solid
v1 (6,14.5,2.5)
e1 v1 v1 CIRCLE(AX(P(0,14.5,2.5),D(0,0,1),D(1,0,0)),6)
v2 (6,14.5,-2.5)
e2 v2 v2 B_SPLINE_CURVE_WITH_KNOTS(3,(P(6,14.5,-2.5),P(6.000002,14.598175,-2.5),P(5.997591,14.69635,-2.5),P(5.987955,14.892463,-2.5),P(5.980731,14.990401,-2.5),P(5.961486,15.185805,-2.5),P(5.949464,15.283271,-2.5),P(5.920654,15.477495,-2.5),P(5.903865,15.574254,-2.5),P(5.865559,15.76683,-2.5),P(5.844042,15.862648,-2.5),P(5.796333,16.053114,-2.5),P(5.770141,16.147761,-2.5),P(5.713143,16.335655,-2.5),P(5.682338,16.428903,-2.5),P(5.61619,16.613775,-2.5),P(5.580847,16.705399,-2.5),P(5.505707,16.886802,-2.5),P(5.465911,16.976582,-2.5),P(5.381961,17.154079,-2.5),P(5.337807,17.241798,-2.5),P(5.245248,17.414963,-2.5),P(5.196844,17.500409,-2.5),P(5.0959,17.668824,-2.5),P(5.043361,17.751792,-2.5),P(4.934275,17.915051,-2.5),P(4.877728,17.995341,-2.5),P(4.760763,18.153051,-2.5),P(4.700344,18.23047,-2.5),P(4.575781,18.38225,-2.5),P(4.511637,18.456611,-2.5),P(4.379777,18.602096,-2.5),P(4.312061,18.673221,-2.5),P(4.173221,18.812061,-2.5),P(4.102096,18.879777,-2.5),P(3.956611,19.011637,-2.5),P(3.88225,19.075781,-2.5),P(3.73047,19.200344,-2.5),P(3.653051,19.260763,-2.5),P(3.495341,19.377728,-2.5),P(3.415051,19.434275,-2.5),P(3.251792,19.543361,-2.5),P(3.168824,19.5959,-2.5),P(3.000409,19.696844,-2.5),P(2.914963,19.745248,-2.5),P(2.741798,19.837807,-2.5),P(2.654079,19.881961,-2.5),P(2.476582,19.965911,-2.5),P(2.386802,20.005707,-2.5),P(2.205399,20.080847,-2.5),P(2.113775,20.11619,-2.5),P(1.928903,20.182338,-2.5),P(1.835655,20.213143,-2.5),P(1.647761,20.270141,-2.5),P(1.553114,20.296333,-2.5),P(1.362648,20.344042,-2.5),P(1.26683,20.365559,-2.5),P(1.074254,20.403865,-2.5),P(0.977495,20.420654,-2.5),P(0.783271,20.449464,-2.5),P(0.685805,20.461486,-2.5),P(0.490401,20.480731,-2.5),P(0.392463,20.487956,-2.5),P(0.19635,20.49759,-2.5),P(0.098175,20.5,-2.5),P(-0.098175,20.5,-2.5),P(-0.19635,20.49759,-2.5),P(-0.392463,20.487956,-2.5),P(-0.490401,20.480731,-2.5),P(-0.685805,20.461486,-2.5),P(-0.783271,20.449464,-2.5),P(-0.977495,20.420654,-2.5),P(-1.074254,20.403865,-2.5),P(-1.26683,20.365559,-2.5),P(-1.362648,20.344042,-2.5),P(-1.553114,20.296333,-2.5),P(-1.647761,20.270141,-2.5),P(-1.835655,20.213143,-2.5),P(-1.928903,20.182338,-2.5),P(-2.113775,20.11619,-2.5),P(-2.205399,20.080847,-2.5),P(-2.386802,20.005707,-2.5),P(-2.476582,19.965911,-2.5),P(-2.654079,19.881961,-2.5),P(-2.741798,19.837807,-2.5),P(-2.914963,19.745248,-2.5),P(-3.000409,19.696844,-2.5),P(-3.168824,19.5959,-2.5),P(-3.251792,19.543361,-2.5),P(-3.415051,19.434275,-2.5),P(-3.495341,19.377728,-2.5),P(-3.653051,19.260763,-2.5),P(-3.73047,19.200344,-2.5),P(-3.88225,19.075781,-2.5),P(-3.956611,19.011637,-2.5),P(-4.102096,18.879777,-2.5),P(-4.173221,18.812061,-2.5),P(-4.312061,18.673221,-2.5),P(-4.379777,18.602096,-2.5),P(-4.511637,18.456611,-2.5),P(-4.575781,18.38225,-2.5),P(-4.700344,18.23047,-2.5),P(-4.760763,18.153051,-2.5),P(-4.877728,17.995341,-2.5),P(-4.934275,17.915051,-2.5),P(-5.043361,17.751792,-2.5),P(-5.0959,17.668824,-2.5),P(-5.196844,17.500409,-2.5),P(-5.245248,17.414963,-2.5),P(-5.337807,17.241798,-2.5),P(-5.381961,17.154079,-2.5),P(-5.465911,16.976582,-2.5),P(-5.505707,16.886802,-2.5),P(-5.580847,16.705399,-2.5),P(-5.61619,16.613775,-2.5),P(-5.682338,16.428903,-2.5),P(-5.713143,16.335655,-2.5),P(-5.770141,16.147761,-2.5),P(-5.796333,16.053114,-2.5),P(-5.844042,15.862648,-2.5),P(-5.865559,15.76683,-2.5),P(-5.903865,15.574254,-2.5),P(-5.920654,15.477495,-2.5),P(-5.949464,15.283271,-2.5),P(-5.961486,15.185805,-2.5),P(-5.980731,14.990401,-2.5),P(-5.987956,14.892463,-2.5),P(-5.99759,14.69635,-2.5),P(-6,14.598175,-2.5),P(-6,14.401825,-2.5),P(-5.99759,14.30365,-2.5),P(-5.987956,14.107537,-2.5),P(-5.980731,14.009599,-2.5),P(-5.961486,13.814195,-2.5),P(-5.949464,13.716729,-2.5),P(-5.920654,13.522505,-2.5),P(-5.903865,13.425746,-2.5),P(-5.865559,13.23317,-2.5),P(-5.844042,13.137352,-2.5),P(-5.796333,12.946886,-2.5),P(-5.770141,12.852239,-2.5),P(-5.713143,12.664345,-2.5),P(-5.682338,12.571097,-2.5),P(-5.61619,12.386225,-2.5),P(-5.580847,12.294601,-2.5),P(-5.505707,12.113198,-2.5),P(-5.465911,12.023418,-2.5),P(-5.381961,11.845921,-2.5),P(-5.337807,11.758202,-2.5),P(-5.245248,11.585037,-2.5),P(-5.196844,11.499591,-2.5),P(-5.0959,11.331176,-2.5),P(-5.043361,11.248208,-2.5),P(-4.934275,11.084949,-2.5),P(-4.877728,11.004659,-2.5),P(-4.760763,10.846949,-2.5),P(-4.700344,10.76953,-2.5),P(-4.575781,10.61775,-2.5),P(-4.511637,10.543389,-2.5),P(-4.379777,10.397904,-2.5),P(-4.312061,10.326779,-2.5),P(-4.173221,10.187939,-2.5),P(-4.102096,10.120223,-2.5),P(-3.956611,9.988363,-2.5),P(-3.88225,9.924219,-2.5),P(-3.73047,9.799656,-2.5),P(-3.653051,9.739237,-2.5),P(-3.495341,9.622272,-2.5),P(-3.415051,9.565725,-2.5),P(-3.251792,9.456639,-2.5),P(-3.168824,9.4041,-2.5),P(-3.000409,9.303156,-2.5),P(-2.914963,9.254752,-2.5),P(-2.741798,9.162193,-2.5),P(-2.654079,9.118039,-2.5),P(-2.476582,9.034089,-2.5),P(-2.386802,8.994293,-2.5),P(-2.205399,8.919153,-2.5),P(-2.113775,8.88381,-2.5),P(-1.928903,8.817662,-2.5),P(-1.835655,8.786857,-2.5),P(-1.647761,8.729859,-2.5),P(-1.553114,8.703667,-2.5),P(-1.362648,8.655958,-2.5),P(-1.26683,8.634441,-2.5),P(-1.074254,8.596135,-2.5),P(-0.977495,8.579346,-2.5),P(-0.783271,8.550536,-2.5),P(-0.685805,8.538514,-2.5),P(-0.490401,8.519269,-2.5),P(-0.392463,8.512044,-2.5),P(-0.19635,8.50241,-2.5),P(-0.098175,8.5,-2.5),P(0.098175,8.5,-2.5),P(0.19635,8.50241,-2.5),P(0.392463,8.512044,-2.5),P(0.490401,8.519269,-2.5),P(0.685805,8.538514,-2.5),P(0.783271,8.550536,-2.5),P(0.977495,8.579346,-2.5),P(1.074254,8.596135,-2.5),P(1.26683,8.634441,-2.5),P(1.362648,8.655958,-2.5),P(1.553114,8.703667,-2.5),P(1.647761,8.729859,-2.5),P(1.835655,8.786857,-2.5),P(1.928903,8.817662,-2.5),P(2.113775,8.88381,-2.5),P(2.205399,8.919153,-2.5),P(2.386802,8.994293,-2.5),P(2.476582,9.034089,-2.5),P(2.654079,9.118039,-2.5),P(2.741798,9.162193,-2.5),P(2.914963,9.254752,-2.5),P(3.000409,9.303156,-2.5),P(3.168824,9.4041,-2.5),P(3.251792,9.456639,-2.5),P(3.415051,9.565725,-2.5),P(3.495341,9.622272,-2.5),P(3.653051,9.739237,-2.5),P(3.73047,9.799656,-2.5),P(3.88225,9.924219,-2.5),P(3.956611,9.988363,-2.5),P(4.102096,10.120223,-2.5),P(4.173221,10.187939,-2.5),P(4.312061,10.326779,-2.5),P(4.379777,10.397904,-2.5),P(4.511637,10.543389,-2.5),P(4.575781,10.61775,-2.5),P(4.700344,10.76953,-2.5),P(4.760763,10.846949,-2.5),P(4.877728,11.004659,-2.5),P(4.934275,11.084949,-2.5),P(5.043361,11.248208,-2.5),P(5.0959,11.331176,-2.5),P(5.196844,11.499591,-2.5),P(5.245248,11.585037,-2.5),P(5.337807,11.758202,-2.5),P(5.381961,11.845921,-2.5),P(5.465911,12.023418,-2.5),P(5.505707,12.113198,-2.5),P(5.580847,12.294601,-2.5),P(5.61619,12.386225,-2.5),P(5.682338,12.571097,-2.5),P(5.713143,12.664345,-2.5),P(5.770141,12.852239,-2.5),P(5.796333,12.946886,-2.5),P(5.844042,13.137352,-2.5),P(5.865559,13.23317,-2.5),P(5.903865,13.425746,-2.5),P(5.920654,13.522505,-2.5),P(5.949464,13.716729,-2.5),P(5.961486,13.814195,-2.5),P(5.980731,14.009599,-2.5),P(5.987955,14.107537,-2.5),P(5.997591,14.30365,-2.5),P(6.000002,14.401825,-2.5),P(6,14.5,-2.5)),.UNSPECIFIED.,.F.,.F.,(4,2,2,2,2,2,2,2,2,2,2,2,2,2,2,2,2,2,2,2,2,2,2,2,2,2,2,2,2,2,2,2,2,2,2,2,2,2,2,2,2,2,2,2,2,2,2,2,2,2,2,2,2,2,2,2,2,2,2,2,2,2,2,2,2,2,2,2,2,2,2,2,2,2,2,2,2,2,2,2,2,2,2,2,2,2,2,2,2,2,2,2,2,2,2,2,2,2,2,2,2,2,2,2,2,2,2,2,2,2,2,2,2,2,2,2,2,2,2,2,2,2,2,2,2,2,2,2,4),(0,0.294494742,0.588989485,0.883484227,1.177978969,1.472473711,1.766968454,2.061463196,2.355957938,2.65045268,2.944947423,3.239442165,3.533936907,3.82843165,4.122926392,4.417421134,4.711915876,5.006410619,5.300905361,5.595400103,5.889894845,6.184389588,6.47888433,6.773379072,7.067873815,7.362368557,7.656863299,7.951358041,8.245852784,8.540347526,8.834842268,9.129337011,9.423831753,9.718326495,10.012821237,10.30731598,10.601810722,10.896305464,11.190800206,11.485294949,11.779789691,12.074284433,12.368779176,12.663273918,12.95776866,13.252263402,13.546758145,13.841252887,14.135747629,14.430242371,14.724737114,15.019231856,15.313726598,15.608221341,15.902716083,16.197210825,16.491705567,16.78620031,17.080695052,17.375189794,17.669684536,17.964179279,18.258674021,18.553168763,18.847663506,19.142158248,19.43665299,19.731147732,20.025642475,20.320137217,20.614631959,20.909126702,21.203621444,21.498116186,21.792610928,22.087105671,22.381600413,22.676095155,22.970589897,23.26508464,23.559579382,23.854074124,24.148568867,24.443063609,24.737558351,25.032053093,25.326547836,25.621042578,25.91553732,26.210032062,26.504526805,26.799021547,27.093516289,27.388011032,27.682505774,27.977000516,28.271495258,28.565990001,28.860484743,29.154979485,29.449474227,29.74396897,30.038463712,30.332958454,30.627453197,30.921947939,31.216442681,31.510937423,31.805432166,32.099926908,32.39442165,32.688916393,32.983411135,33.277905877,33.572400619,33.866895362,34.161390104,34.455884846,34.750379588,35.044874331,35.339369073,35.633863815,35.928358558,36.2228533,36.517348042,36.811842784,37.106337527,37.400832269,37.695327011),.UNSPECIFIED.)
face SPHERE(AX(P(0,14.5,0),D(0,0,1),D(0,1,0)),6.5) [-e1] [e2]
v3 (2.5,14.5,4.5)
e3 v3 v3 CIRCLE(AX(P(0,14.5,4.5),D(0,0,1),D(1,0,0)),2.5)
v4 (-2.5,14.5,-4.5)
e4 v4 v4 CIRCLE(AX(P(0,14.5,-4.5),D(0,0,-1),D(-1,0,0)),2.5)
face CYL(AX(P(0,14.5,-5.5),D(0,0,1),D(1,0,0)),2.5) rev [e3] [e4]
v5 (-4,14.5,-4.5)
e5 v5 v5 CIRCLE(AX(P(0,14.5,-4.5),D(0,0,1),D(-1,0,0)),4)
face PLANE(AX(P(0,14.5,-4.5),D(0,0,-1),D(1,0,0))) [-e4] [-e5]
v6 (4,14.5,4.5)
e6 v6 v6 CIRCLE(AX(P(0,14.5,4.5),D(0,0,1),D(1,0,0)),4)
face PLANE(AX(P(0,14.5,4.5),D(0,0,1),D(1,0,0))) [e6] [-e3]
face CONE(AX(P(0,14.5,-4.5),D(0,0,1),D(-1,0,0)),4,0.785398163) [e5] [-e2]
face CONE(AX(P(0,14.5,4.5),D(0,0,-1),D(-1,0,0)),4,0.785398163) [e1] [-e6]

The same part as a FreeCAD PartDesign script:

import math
import FreeCAD as App
import Part
import Sketcher


def add_polygon(sketch, points):
    """Adds a closed chain of lines whose ends are joined by coincident constraints."""
    first, n = sketch.GeometryCount, len(points)
    for a, b in zip(points, points[1:] + points[:1]):
        sketch.addGeometry(Part.LineSegment(App.Vector(*a, 0), App.Vector(*b, 0)), False)
    for i in range(n):
        sketch.addConstraint(Sketcher.Constraint("Coincident", first + i, 2, first + (i + 1) % n, 1))

doc = App.newDocument("Part")
body = doc.addObject("PartDesign::Body", "Body")

# Sketch on XZ plane
sketch1 = doc.addObject("Sketcher::SketchObject", "Sketch")
body.addObject(sketch1)
sketch1.AttachmentSupport = (doc.XZ_Plane, [""])
sketch1.MapMode = "FlatFace"
sketch1.addGeometry(Part.Circle(App.Vector(0, 0, 0), App.Vector(0, 0, 1), 10), False)
sketch1.addConstraint([
    Sketcher.Constraint("Coincident", 0, 3, -1, 1),
    Sketcher.Constraint("Diameter", 0, 20.0),
])
pad1 = doc.addObject("PartDesign::Pad", "Pad")
body.addObject(pad1)
pad1.Profile = sketch1
pad1.Length = 4.5
pad1.Reversed = True

# Sketch on XY plane
sketch2 = doc.addObject("Sketcher::SketchObject", "Sketch001")
body.addObject(sketch2)
sketch2.AttachmentSupport = (doc.XY_Plane, [""])
sketch2.MapMode = "FlatFace"
sketch2.addGeometry([
    Part.LineSegment(App.Vector(-10, 4.5, 0), App.Vector(10, 4.5, 0)),  # 0
    Part.LineSegment(App.Vector(10, 4.5, 0), App.Vector(10, 14.5, 0)),  # 1
    Part.ArcOfCircle(Part.Circle(App.Vector(0, 14.5, 0), App.Vector(0, 0, 1), 10), math.radians(0), math.radians(180)),  # 2
    Part.LineSegment(App.Vector(-10, 14.5, 0), App.Vector(-10, 4.5, 0)),  # 3
    Part.Circle(App.Vector(0, 14.5, 0), App.Vector(0, 0, 1), 8),  # 4
], False)
sketch2.addConstraint([
    Sketcher.Constraint("Coincident", 0, 2, 1, 1),
    Sketcher.Constraint("Tangent", 1, 2, 2, 1),
    Sketcher.Constraint("Tangent", 2, 2, 3, 1),
    Sketcher.Constraint("Coincident", 3, 2, 0, 1),
    Sketcher.Constraint("Horizontal", 0),
    Sketcher.Constraint("Vertical", 1),
    Sketcher.Constraint("Vertical", 3),
    Sketcher.Constraint("Coincident", 4, 3, 2, 3),
    Sketcher.Constraint("PointOnObject", 2, 3, -2),
    Sketcher.Constraint("Diameter", 4, 16.0),
    Sketcher.Constraint("Radius", 2, 10.0),
    Sketcher.Constraint("DistanceY", 1, 1, 1, 2, 10.0),
    Sketcher.Constraint("DistanceY", -1, 1, 2, 3, 14.5),
])
pad2 = doc.addObject("PartDesign::Pad", "Pad001")
body.addObject(pad2)
pad2.Profile = sketch2
pad2.Length = 10
pad2.Midplane = True

# Sketch on XY plane
sketch3 = doc.addObject("Sketcher::SketchObject", "Sketch002")
body.addObject(sketch3)
sketch3.AttachmentSupport = (doc.XY_Plane, [""])
sketch3.MapMode = "FlatFace"
sketch3.addGeometry(Part.Circle(App.Vector(0, 14.5, 0), App.Vector(0, 0, 1), 8), False)
sketch3.addConstraint([
    Sketcher.Constraint("PointOnObject", 0, 3, -2),
    Sketcher.Constraint("Diameter", 0, 16.0),
    Sketcher.Constraint("DistanceY", -1, 1, 0, 3, 14.5),
])
pad3 = doc.addObject("PartDesign::Pad", "Pad002")
body.addObject(pad3)
pad3.Profile = sketch3
pad3.Length = 5
pad3.Midplane = True

# Sketch on XY plane
sketch4 = doc.addObject("Sketcher::SketchObject", "Sketch003")
body.addObject(sketch4)
sketch4.AttachmentSupport = (doc.XY_Plane, [""])
sketch4.MapMode = "FlatFace"
sketch4.AttachmentOffset = App.Placement(App.Vector(0, 0, 4.5), App.Rotation())
sketch4.addGeometry(Part.Circle(App.Vector(0, 14.5, 0), App.Vector(0, 0, 1), 4), False)
sketch4.addConstraint([
    Sketcher.Constraint("PointOnObject", 0, 3, -2),
    Sketcher.Constraint("Diameter", 0, 8.0),
    Sketcher.Constraint("DistanceY", -1, 1, 0, 3, 14.5),
])

# Sketch on XY plane
sketch5 = doc.addObject("Sketcher::SketchObject", "Sketch004")
body.addObject(sketch5)
sketch5.AttachmentSupport = (doc.XY_Plane, [""])
sketch5.MapMode = "FlatFace"
sketch5.AttachmentOffset = App.Placement(App.Vector(0, 0, 2.5), App.Rotation())
sketch5.addGeometry(Part.Circle(App.Vector(0, 14.5, 0), App.Vector(0, 0, 1), 6), False)
sketch5.addConstraint([
    Sketcher.Constraint("PointOnObject", 0, 3, -2),
    Sketcher.Constraint("Diameter", 0, 12.0),
    Sketcher.Constraint("DistanceY", -1, 1, 0, 3, 14.5),
])

additiveloft = doc.addObject("PartDesign::AdditiveLoft", "AdditiveLoft")
body.addObject(additiveloft)
additiveloft.Profile = sketch4
additiveloft.Sections = [sketch5]
doc.recompute()

mirrored = doc.addObject("PartDesign::Mirrored", "Mirrored")
body.addObject(mirrored)
mirrored.Originals = [additiveloft]
mirrored.MirrorPlane = (doc.XY_Plane, [""])
body.Tip = mirrored

# Sketch on XZ plane
sketch6 = doc.addObject("Sketcher::SketchObject", "Sketch005")
body.addObject(sketch6)
sketch6.AttachmentSupport = (doc.XZ_Plane, [""])
sketch6.MapMode = "FlatFace"
sketch6.AttachmentOffset = App.Placement(App.Vector(0, 0, -4.5), App.Rotation())
sketch6.addGeometry([
    Part.Circle(App.Vector(0, 0, 0), App.Vector(0, 0, 1), 14.627232),
    Part.Circle(App.Vector(0, 0, 0), App.Vector(0, 0, 1), 10),
], False)
sketch6.addConstraint([
    Sketcher.Constraint("Coincident", 0, 3, -1, 1),
    Sketcher.Constraint("Coincident", 1, 3, -1, 1),
    Sketcher.Constraint("Diameter", 1, 20.0),
    Sketcher.Constraint("Diameter", 0, 29.254465),
])
pocket1 = doc.addObject("PartDesign::Pocket", "Pocket")
body.addObject(pocket1)
pocket1.Profile = sketch6
pocket1.Length = 18

# Sketch on XY plane
sketch7 = doc.addObject("Sketcher::SketchObject", "Sketch006")
body.addObject(sketch7)
sketch7.AttachmentSupport = (doc.XY_Plane, [""])
sketch7.MapMode = "FlatFace"
sketch7.AttachmentOffset = App.Placement(App.Vector(0, 0, 4.5), App.Rotation())
sketch7.addGeometry(Part.Circle(App.Vector(0, 14.5, 0), App.Vector(0, 0, 1), 2.5), False)
sketch7.addConstraint([
    Sketcher.Constraint("PointOnObject", 0, 3, -2),
    Sketcher.Constraint("Diameter", 0, 5.0),
    Sketcher.Constraint("DistanceY", -1, 1, 0, 3, 14.5),
])
pocket2 = doc.addObject("PartDesign::Pocket", "Pocket001")
body.addObject(pocket2)
pocket2.Profile = sketch7
pocket2.Length = 10

# Sketch on XZ plane
sketch8 = doc.addObject("Sketcher::SketchObject", "Sketch007")
body.addObject(sketch8)
sketch8.AttachmentSupport = (doc.XZ_Plane, [""])
sketch8.MapMode = "FlatFace"
sketch8.addGeometry(Part.Circle(App.Vector(0, 0, 0), App.Vector(0, 0, 1), 6), False)
sketch8.addConstraint([
    Sketcher.Constraint("Coincident", 0, 3, -1, 1),
    Sketcher.Constraint("Diameter", 0, 12.0),
])
pad4 = doc.addObject("PartDesign::Pad", "Pad003")
body.addObject(pad4)
pad4.Profile = sketch8
pad4.Length = 80

# Sketch on XY plane
sketch9 = doc.addObject("Sketcher::SketchObject", "Sketch008")
body.addObject(sketch9)
sketch9.AttachmentSupport = (doc.XY_Plane, [""])
sketch9.MapMode = "FlatFace"
sketch9.AttachmentOffset = App.Placement(App.Vector(0, 0, 4.5), App.Rotation())
add_polygon(sketch9, [(-21.218214, 33.118217), (-21.218214, -92.452921), (23.42461, -92.452921), (23.42461, 33.118217)])  # lines 0-3
sketch9.addGeometry(Part.Circle(App.Vector(0, 14.5, 0), App.Vector(0, 0, 1), 6), False)  # 4
sketch9.addConstraint([
    Sketcher.Constraint("Vertical", 0),
    Sketcher.Constraint("Horizontal", 1),
    Sketcher.Constraint("Vertical", 2),
    Sketcher.Constraint("Horizontal", 3),
    Sketcher.Constraint("PointOnObject", 4, 3, -2),
    Sketcher.Constraint("Diameter", 4, 12.0),
    Sketcher.Constraint("DistanceY", -1, 1, 4, 3, 14.5),
    Sketcher.Constraint("DistanceX", 1, 1, 1, 2, 44.642824),
    Sketcher.Constraint("DistanceY", 0, 2, 0, 1, 125.571138),
    Sketcher.Constraint("DistanceY", 0, 2, -1, 1, 92.452921),
    Sketcher.Constraint("DistanceX", -1, 1, 1, 2, 23.42461),
])
pocket3 = doc.addObject("PartDesign::Pocket", "Pocket002")
body.addObject(pocket3)
pocket3.Profile = sketch9
pocket3.Length = 36
pocket3.Midplane = True

# Sketch on YZ plane
sketch10 = doc.addObject("Sketcher::SketchObject", "Sketch009")
body.addObject(sketch10)
sketch10.AttachmentSupport = (doc.YZ_Plane, [""])
sketch10.MapMode = "FlatFace"
sketch10.addGeometry([
    Part.LineSegment(App.Vector(20.5, 2.5, 0), App.Vector(20.5, -2.5, 0)),
    Part.ArcOfCircle(Part.Circle(App.Vector(14.5, 0, 0), App.Vector(0, 0, 1), 6.5), math.radians(-22.619865), math.radians(22.619865)),
], False)
sketch10.addGeometry(Part.LineSegment(App.Vector(14.5, 2.5, 0), App.Vector(14.5, -2.5, 0)), True)  # axis
sketch10.addConstraint([
    Sketcher.Constraint("Coincident", 0, 1, 1, 2),
    Sketcher.Constraint("Coincident", 1, 1, 0, 2),
    Sketcher.Constraint("Vertical", 0),
    Sketcher.Constraint("Vertical", 2),
    Sketcher.Constraint("PointOnObject", 1, 3, -1),
    Sketcher.Constraint("Horizontal", 0, 1, 2, 1),
    Sketcher.Constraint("Horizontal", 1, 1, 2, 2),
    Sketcher.Constraint("Vertical", 1, 3, 2, 1),
    Sketcher.Constraint("Radius", 1, 6.5),
    Sketcher.Constraint("DistanceY", 0, 2, 0, 1, 5.0),
    Sketcher.Constraint("DistanceX", -1, 1, 1, 3, 14.5),
])
revolution = doc.addObject("PartDesign::Revolution", "Revolution")
body.addObject(revolution)
revolution.Profile = sketch10
revolution.ReferenceAxis = (sketch10, ["Axis0"])
revolution.Angle = 360

doc.recompute()
